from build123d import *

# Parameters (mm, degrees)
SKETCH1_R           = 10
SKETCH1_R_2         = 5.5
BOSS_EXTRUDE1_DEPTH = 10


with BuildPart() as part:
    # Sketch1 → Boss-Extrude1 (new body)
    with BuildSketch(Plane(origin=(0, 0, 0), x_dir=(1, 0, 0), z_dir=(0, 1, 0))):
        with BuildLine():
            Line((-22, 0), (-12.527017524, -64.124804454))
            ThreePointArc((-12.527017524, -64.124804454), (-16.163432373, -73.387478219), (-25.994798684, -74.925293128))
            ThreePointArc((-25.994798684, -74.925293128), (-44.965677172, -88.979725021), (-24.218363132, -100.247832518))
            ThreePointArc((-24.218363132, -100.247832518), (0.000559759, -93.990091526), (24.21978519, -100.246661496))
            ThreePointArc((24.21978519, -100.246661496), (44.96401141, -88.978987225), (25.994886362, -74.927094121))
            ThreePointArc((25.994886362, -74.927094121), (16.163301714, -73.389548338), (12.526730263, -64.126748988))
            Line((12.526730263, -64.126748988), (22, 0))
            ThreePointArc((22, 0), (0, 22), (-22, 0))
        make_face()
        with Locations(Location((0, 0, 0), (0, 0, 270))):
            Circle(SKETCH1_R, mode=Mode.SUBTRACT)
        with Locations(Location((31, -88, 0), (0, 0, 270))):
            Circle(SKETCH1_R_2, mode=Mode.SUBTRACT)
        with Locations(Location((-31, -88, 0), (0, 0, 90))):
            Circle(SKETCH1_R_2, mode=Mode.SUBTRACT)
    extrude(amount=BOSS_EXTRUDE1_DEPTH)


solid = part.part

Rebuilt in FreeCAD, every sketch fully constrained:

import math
import FreeCAD as App
import Part
import Sketcher

V = App.Vector

doc = App.newDocument("Part")
body = doc.addObject("PartDesign::Body", "Body")

# Sketch on XZ plane
sketch1 = body.newObject("Sketcher::SketchObject", "Sketch")
sketch1.AttachmentSupport = (doc.getObject("XZ_Plane"), [""])
sketch1.MapMode = "FlatFace"
sketch1.addGeometry(Part.LineSegment(V(-22, 0, 0), V(-12.527018, 64.124804, 0)), False)
sketch1.addGeometry(Part.ArcOfCircle(Part.Circle(V(-22.419655, 65.586217, 0), V(0, 0, 1), 10), math.radians(-8.403371), math.radians(110.947624)), False)
sketch1.addGeometry(Part.ArcOfCircle(Part.Circle(V(-31, 88, 0), V(0, 0, 1), 14), math.radians(61.026658), math.radians(290.947624)), False)
sketch1.addGeometry(Part.ArcOfCircle(Part.Circle(V(0.001769, 143.990092, 0), V(0, 0, 1), 50), math.radians(-118.973342), math.radians(-61.029428)), False)
sketch1.addGeometry(Part.ArcOfCircle(Part.Circle(V(31, 88, 0), V(0, 0, 1), 13.998287), math.radians(-110.949924), math.radians(118.970572)), False)
sketch1.addGeometry(Part.ArcOfCircle(Part.Circle(V(22.419368, 65.588161, 0), V(0, 0, 1), 10), math.radians(69.050076), math.radians(188.403371)), False)
sketch1.addGeometry(Part.LineSegment(V(12.52673, 64.126749, 0), V(22, 0, 0)), False)
sketch1.addGeometry(Part.ArcOfCircle(Part.Circle(V(0, 0, 0), V(0, 0, 1), 22), math.radians(180), math.radians(360)), False)
sketch1.addGeometry(Part.Circle(V(-31, 88, 0), V(0, 0, 1), 5.5), False)
sketch1.addGeometry(Part.Circle(V(31, 88, 0), V(0, 0, 1), 5.5), False)
sketch1.addGeometry(Part.Circle(V(0, 0, 0), V(0, 0, 1), 10), False)
sketch1.addConstraint(Sketcher.Constraint("Tangent", 0, 2, 1, 1))
sketch1.addConstraint(Sketcher.Constraint("Tangent", 1, 2, 2, 2))
sketch1.addConstraint(Sketcher.Constraint("Tangent", 2, 1, 3, 1))
sketch1.addConstraint(Sketcher.Constraint("Tangent", 3, 2, 4, 2))
sketch1.addConstraint(Sketcher.Constraint("Tangent", 4, 1, 5, 1))
sketch1.addConstraint(Sketcher.Constraint("Tangent", 5, 2, 6, 1))
sketch1.addConstraint(Sketcher.Constraint("Coincident", 6, 2, 7, 2))
sketch1.addConstraint(Sketcher.Constraint("Coincident", 7, 1, 0, 1))
sketch1.addConstraint(Sketcher.Constraint("Coincident", 7, 3, -1, 1))
sketch1.addConstraint(Sketcher.Constraint("Coincident", 10, 3, -1, 1))
sketch1.addConstraint(Sketcher.Constraint("Coincident", 8, 3, 2, 3))
sketch1.addConstraint(Sketcher.Constraint("Coincident", 9, 3, 4, 3))
sketch1.addConstraint(Sketcher.Constraint("Equal", 1, 5))
sketch1.addConstraint(Sketcher.Constraint("Equal", 8, 9))
sketch1.addConstraint(Sketcher.Constraint("Equal", 5, 10))
sketch1.addConstraint(Sketcher.Constraint("Symmetric", 2, 3, 4, 3, -2))
sketch1.addConstraint(Sketcher.Constraint("PointOnObject", 6, 2, -1))
sketch1.addConstraint(Sketcher.Constraint("PointOnObject", 7, 1, -1))
sketch1.addConstraint(Sketcher.Constraint("Diameter", 8, 11.0))
sketch1.addConstraint(Sketcher.Constraint("Diameter", 10, 20.0))
sketch1.addConstraint(Sketcher.Constraint("Radius", 2, 14.0))
sketch1.addConstraint(Sketcher.Constraint("Radius", 3, 50.0))
sketch1.addConstraint(Sketcher.Constraint("Radius", 7, 22.0))
sketch1.addConstraint(Sketcher.Constraint("DistanceX", 2, 3, -1, 1, 31.0))
sketch1.addConstraint(Sketcher.Constraint("DistanceY", -1, 1, 2, 3, 88.0))
sketch1.addConstraint(Sketcher.Constraint("Radius", 4, 13.998287))
sketch1.addConstraint(Sketcher.Constraint("DistanceX", 1, 2, -1, 1, 25.994799))
sketch1.addConstraint(Sketcher.Constraint("DistanceX", 3, 3, 5, 3, 22.417599))
pad1 = body.newObject("PartDesign::Pad", "Pad")
pad1.Profile = sketch1
pad1.Length = 10
pad1.Reversed = True

doc.recompute()
